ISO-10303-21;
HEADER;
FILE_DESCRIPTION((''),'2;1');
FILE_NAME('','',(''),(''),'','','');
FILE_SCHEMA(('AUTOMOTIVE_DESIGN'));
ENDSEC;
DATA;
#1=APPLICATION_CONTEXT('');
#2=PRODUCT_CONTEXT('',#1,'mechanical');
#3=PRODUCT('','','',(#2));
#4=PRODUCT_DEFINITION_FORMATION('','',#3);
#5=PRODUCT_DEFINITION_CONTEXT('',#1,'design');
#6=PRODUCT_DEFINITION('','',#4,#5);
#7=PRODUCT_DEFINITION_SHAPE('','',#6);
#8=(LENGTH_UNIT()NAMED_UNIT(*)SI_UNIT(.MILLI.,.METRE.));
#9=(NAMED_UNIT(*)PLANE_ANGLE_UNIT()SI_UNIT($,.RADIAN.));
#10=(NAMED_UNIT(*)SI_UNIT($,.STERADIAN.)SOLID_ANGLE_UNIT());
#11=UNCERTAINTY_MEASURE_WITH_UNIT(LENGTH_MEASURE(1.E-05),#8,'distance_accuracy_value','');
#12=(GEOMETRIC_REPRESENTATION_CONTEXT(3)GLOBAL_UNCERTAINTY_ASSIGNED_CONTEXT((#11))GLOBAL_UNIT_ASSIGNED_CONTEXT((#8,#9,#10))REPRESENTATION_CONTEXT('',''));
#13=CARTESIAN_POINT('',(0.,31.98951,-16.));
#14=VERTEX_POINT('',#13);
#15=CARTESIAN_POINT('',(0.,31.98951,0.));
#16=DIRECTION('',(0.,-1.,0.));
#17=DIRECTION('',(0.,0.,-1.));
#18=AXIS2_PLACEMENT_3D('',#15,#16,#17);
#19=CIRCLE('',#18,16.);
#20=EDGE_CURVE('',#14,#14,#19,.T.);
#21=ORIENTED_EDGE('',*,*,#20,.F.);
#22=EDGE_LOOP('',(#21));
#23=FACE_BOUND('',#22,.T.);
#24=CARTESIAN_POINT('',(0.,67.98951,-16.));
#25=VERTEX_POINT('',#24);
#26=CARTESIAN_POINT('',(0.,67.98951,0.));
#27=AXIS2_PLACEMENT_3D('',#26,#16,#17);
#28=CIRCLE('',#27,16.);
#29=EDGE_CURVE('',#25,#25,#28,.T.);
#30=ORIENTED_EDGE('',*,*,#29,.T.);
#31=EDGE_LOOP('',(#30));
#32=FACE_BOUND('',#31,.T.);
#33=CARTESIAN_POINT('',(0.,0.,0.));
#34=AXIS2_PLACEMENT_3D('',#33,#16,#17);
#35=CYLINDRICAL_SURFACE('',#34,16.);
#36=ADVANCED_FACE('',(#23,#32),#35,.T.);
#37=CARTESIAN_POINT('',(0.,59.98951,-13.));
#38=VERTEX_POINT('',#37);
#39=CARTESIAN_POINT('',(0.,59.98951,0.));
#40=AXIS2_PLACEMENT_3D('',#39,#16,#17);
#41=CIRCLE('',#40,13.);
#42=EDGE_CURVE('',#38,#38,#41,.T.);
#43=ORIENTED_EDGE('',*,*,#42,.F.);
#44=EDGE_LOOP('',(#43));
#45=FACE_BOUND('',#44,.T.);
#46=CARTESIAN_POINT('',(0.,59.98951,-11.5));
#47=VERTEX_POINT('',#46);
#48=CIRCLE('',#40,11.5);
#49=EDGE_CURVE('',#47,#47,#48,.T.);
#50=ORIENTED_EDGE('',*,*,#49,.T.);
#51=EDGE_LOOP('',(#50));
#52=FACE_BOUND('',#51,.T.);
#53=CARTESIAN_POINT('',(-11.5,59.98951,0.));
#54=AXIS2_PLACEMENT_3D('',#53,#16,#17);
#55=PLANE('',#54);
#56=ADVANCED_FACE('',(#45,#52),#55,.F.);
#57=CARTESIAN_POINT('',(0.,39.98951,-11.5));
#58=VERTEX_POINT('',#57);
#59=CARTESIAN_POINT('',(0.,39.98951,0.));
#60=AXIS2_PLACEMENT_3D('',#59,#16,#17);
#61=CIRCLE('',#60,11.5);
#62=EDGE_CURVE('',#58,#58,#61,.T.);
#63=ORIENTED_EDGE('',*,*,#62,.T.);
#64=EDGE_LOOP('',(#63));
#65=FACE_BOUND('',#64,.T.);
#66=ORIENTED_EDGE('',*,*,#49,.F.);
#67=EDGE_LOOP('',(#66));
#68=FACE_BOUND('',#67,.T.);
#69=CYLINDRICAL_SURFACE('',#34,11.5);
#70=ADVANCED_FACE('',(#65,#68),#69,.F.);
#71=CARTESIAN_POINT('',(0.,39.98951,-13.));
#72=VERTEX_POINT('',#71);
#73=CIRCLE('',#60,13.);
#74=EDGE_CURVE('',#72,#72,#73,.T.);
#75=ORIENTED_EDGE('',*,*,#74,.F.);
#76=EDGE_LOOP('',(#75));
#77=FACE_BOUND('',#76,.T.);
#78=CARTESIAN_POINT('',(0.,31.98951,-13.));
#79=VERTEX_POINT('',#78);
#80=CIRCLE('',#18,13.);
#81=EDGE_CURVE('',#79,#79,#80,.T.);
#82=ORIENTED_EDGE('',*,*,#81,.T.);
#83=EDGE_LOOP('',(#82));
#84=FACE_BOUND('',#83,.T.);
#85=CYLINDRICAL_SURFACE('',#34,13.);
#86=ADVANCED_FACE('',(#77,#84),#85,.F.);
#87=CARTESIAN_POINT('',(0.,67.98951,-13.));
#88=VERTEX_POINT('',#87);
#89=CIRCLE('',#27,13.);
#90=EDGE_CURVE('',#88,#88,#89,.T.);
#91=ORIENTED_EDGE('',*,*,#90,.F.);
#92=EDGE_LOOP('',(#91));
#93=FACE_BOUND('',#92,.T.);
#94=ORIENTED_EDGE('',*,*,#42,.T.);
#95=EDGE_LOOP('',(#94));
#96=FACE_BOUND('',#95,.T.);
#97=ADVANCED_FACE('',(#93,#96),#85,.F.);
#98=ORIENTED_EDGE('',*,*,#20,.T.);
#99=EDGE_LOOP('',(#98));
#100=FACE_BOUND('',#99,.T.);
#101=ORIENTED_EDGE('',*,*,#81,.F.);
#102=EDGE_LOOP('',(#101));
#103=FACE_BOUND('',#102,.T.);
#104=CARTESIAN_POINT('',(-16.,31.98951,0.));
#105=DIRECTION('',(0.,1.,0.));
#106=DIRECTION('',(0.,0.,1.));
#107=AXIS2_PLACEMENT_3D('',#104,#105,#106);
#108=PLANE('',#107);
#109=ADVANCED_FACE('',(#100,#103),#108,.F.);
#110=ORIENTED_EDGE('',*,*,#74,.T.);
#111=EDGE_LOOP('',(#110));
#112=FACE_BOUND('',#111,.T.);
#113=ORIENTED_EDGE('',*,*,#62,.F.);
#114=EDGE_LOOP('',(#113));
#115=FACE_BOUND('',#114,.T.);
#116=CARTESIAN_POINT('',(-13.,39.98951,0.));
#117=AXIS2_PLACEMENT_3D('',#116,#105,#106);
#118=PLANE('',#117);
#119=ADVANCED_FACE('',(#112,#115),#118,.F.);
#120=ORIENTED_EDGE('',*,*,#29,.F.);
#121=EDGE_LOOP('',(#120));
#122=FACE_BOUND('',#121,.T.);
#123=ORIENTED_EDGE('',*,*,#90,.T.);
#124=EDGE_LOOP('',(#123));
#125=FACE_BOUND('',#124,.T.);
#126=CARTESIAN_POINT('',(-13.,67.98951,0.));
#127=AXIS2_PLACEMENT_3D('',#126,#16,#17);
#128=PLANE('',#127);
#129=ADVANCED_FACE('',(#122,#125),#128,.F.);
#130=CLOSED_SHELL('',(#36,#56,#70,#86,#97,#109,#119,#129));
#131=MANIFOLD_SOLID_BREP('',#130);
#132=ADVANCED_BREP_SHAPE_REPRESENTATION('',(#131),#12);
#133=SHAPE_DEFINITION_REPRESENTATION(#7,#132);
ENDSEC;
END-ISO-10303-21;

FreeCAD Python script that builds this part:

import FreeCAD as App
import Part
import Sketcher
from FreeCAD import Vector


def add_polygon(sketch, points):
    """Adds a closed chain of lines whose ends are joined by coincident constraints."""
    first, n = sketch.GeometryCount, len(points)
    for a, b in zip(points, points[1:] + points[:1]):
        sketch.addGeometry(Part.LineSegment(App.Vector(*a, 0), App.Vector(*b, 0)), False)
    for i in range(n):
        sketch.addConstraint(Sketcher.Constraint("Coincident", first + i, 2, first + (i + 1) % n, 1))

doc = App.newDocument("Part")
body = doc.addObject("PartDesign::Body", "Body")

# Sketch on XY plane
sketch1 = body.newObject("Sketcher::SketchObject", "Sketch")
sketch1.AttachmentSupport = (doc.getObject("XY_Plane"), [""])
sketch1.MapMode = "FlatFace"
add_polygon(sketch1, [(-13, 67.98951), (-16, 67.98951), (-16, 31.98951), (-13, 31.98951), (-13, 39.98951), (-11.5, 39.98951), (-11.5, 59.98951), (-13, 59.98951)])  # lines 0-7
sketch1.addConstraint(Sketcher.Constraint("Horizontal", 0))
sketch1.addConstraint(Sketcher.Constraint("Vertical", 1))
sketch1.addConstraint(Sketcher.Constraint("Horizontal", 2))
sketch1.addConstraint(Sketcher.Constraint("Vertical", 3))
sketch1.addConstraint(Sketcher.Constraint("Horizontal", 4))
sketch1.addConstraint(Sketcher.Constraint("Vertical", 5))
sketch1.addConstraint(Sketcher.Constraint("Horizontal", 6))
sketch1.addConstraint(Sketcher.Constraint("Vertical", 7))
sketch1.addConstraint(Sketcher.Constraint("Vertical", 3, 2, 6, 2))
sketch1.addConstraint(Sketcher.Constraint("Equal", 3, 7))
sketch1.addConstraint(Sketcher.Constraint("DistanceX", 0, 2, 0, 1, 3.0))
sketch1.addConstraint(Sketcher.Constraint("DistanceY", 1, 2, 1, 1, 36.0))
sketch1.addConstraint(Sketcher.Constraint("DistanceY", 3, 1, 3, 2, 8.0))
sketch1.addConstraint(Sketcher.Constraint("DistanceX", 4, 1, 4, 2, 1.5))
sketch1.addConstraint(Sketcher.Constraint("DistanceX", 0, 2, -1, 1, 16.0))
sketch1.addConstraint(Sketcher.Constraint("DistanceY", -1, 1, 0, 2, 67.98951))
revolution = body.newObject("PartDesign::Revolution", "Revolution")
revolution.Profile = sketch1
revolution.ReferenceAxis = (sketch1, ["V_Axis"])
revolution.Angle = 360

doc.recompute()
